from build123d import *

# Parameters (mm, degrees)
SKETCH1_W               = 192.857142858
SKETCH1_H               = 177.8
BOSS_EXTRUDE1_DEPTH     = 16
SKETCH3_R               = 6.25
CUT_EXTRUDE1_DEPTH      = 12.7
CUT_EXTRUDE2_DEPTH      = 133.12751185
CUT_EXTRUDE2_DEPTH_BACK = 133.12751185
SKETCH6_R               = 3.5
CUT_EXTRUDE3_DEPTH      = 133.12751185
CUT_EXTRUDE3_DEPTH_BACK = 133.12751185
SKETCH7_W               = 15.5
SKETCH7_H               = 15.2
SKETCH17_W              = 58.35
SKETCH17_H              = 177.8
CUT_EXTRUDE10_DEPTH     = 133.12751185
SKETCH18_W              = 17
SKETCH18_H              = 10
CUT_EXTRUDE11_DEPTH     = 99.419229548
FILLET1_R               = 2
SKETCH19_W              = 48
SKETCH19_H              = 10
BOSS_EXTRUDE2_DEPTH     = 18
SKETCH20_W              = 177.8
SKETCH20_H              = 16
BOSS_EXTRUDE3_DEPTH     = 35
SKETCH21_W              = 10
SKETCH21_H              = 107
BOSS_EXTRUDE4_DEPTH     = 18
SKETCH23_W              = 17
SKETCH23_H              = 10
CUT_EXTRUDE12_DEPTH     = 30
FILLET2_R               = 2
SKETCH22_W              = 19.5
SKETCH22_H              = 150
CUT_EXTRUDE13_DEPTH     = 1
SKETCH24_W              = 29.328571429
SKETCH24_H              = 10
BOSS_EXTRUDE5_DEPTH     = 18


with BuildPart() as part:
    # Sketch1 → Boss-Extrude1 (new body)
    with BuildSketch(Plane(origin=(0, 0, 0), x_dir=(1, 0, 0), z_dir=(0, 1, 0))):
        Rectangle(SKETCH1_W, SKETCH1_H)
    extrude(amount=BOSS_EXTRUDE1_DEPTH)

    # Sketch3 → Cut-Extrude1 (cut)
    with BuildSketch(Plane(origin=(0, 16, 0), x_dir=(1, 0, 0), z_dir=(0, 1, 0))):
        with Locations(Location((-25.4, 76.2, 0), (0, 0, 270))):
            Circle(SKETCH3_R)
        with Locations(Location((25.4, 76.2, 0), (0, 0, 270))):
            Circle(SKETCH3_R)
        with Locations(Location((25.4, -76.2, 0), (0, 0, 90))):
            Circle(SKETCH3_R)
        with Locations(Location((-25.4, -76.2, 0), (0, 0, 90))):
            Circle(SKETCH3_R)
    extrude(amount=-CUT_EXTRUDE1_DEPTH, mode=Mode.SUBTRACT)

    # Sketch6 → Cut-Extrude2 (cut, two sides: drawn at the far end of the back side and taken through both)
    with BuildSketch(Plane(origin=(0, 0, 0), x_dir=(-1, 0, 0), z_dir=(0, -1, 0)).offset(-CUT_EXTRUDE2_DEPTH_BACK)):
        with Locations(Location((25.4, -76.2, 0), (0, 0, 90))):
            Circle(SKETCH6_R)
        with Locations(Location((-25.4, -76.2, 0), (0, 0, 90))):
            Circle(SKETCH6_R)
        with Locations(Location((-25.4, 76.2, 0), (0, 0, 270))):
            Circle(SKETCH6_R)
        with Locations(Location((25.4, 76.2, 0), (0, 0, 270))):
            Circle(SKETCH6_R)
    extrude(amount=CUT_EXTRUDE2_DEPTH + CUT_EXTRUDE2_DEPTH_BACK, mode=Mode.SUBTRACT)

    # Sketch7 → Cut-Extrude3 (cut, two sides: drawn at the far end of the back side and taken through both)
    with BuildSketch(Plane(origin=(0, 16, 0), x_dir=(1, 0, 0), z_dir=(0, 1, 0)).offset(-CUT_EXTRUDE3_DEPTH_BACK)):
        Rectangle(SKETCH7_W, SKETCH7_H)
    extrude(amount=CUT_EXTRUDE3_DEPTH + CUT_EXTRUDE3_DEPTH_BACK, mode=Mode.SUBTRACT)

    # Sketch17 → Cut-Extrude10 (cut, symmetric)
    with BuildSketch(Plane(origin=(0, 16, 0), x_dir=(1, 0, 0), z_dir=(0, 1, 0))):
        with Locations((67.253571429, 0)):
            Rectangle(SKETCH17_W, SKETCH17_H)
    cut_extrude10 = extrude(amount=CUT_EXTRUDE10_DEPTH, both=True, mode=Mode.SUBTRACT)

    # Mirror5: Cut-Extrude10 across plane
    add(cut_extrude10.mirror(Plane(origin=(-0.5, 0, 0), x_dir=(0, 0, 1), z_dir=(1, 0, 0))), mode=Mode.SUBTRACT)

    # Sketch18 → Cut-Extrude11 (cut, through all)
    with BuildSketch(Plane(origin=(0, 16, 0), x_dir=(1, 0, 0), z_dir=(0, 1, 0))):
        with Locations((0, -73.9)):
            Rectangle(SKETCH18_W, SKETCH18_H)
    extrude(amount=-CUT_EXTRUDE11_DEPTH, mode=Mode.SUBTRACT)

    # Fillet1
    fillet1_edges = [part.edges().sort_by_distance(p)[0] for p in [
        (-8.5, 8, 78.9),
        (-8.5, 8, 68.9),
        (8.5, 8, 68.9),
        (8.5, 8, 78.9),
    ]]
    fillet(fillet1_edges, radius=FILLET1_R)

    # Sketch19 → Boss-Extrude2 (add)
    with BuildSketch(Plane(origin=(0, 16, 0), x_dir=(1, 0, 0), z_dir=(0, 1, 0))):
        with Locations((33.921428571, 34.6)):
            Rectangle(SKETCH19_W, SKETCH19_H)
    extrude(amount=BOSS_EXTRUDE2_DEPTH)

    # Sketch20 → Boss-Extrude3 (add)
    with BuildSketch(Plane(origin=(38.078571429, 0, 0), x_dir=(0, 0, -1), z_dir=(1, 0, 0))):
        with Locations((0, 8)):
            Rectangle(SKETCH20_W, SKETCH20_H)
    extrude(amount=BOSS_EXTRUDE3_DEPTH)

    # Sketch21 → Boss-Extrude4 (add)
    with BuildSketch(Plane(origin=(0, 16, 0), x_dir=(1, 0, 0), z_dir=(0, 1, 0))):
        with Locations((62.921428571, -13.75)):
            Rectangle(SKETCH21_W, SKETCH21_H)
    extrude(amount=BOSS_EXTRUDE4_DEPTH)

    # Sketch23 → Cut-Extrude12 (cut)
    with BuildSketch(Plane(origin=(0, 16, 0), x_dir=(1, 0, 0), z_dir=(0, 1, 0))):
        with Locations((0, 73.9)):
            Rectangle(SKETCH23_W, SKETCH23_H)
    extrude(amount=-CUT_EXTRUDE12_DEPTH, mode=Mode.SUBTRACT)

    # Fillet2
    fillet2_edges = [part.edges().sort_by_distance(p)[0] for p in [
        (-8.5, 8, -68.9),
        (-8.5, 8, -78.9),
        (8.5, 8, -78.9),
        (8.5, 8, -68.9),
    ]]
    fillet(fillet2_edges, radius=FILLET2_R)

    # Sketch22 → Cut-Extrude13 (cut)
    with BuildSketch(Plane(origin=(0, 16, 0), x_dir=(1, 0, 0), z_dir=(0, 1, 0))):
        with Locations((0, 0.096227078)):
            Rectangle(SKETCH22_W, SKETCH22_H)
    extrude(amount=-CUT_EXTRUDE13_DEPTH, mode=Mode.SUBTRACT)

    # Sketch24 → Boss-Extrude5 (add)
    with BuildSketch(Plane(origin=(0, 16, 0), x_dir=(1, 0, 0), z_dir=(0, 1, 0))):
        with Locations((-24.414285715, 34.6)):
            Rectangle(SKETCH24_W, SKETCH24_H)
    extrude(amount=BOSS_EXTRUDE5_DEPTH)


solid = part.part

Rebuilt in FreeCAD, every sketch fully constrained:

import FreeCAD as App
import Part
import Sketcher
from FreeCAD import Vector
Q = App.Units.Quantity


def edges_at(feature, points):
    """Names of the edges that pass closest to the given points."""
    edges = feature.Shape.Edges
    near = lambda p: min(range(len(edges)), key=lambda i: edges[i].distToShape(Part.Vertex(*p))[0])
    return sorted({f"Edge{near(p) + 1}" for p in points})


def add_polygon(sketch, points):
    """Adds a closed chain of lines whose ends are joined by coincident constraints."""
    first, n = sketch.GeometryCount, len(points)
    for a, b in zip(points, points[1:] + points[:1]):
        sketch.addGeometry(Part.LineSegment(App.Vector(*a, 0), App.Vector(*b, 0)), False)
    for i in range(n):
        sketch.addConstraint(Sketcher.Constraint("Coincident", first + i, 2, first + (i + 1) % n, 1))

doc = App.newDocument("Part")
body = doc.addObject("PartDesign::Body", "Body")

# Sketch on XZ plane
sketch1 = body.newObject("Sketcher::SketchObject", "Sketch")
sketch1.AttachmentSupport = (doc.getObject("XZ_Plane"), [""])
sketch1.MapMode = "FlatFace"
add_polygon(sketch1, [(-96.428571, -88.9), (-96.428571, 88.9), (96.428571, 88.9), (96.428571, -88.9)])  # lines 0-3
sketch1.addConstraint(Sketcher.Constraint("Vertical", 0))
sketch1.addConstraint(Sketcher.Constraint("Horizontal", 1))
sketch1.addConstraint(Sketcher.Constraint("Vertical", 2))
sketch1.addConstraint(Sketcher.Constraint("Horizontal", 3))
sketch1.addConstraint(Sketcher.Constraint("Symmetric", 0, 2, 2, 2, -1, 1))
sketch1.addConstraint(Sketcher.Constraint("DistanceY", 0, 1, 0, 2, Q("177.8 mm")))
sketch1.addConstraint(Sketcher.Constraint("DistanceX", 1, 1, 1, 2, Q("192.857143 mm")))
pad1 = body.newObject("PartDesign::Pad", "Pad")
pad1.Profile = sketch1
pad1.Length = 16
pad1.Reversed = True

# Sketch on XZ plane
sketch2 = body.newObject("Sketcher::SketchObject", "Sketch001")
sketch2.AttachmentSupport = (doc.getObject("XZ_Plane"), [""])
sketch2.MapMode = "FlatFace"
sketch2.AttachmentOffset = App.Placement(Vector(0, 0, -16), App.Rotation())
sketch2.addGeometry(Part.Circle(Vector(-25.4, -76.2, 0), Vector(0, 0, 1), 6.25), False)
sketch2.addGeometry(Part.Circle(Vector(25.4, -76.2, 0), Vector(0, 0, 1), 6.25), False)
sketch2.addGeometry(Part.Circle(Vector(25.4, 76.2, 0), Vector(0, 0, 1), 6.25), False)
sketch2.addGeometry(Part.Circle(Vector(-25.4, 76.2, 0), Vector(0, 0, 1), 6.25), False)
sketch2.addConstraint(Sketcher.Constraint("Equal", 0, 1))
sketch2.addConstraint(Sketcher.Constraint("Equal", 1, 2))
sketch2.addConstraint(Sketcher.Constraint("Equal", 2, 3))
sketch2.addConstraint(Sketcher.Constraint("Symmetric", 0, 3, 2, 3, -1, 1))
sketch2.addConstraint(Sketcher.Constraint("Symmetric", 1, 3, 3, 3, -1, 1))
sketch2.addConstraint(Sketcher.Constraint("Symmetric", 0, 3, 1, 3, -2))
sketch2.addConstraint(Sketcher.Constraint("Diameter", 0, Q("12.5 mm")))
sketch2.addConstraint(Sketcher.Constraint("DistanceX", 0, 3, -1, 1, Q("25.4 mm")))
sketch2.addConstraint(Sketcher.Constraint("DistanceY", 0, 3, -1, 1, Q("76.2 mm")))
pocket1 = body.newObject("PartDesign::Pocket", "Pocket")
pocket1.Profile = sketch2
pocket1.Length = 12.7
pocket1.Reversed = True

# Sketch on XZ plane
sketch3 = body.newObject("Sketcher::SketchObject", "Sketch002")
sketch3.AttachmentSupport = (doc.getObject("XZ_Plane"), [""])
sketch3.MapMode = "FlatFace"
sketch3.addGeometry(Part.Circle(Vector(-25.4, 76.2, 0), Vector(0, 0, 1), 3.5), False)
sketch3.addGeometry(Part.Circle(Vector(25.4, 76.2, 0), Vector(0, 0, 1), 3.5), False)
sketch3.addGeometry(Part.Circle(Vector(25.4, -76.2, 0), Vector(0, 0, 1), 3.5), False)
sketch3.addGeometry(Part.Circle(Vector(-25.4, -76.2, 0), Vector(0, 0, 1), 3.5), False)
sketch3.addConstraint(Sketcher.Constraint("Equal", 0, 1))
sketch3.addConstraint(Sketcher.Constraint("Equal", 1, 2))
sketch3.addConstraint(Sketcher.Constraint("Equal", 2, 3))
sketch3.addConstraint(Sketcher.Constraint("Symmetric", 0, 3, 2, 3, -1, 1))
sketch3.addConstraint(Sketcher.Constraint("Symmetric", 1, 3, 3, 3, -1, 1))
sketch3.addConstraint(Sketcher.Constraint("Symmetric", 0, 3, 1, 3, -2))
sketch3.addConstraint(Sketcher.Constraint("Diameter", 0, Q("7 mm")))
sketch3.addConstraint(Sketcher.Constraint("DistanceX", 0, 3, -1, 1, Q("25.4 mm")))
sketch3.addConstraint(Sketcher.Constraint("DistanceY", -1, 1, 0, 3, Q("76.2 mm")))
pocket2 = body.newObject("PartDesign::Pocket", "Pocket001")
pocket2.Profile = sketch3
pocket2.Type = "ThroughAll"
pocket2.Midplane = True

# Sketch on XZ plane
sketch4 = body.newObject("Sketcher::SketchObject", "Sketch003")
sketch4.AttachmentSupport = (doc.getObject("XZ_Plane"), [""])
sketch4.MapMode = "FlatFace"
sketch4.AttachmentOffset = App.Placement(Vector(0, 0, -16), App.Rotation())
add_polygon(sketch4, [(-7.75, -7.6), (-7.75, 7.6), (7.75, 7.6), (7.75, -7.6)])  # lines 0-3
sketch4.addConstraint(Sketcher.Constraint("Vertical", 0))
sketch4.addConstraint(Sketcher.Constraint("Horizontal", 1))
sketch4.addConstraint(Sketcher.Constraint("Vertical", 2))
sketch4.addConstraint(Sketcher.Constraint("Horizontal", 3))
sketch4.addConstraint(Sketcher.Constraint("Symmetric", 0, 2, 2, 2, -1, 1))
sketch4.addConstraint(Sketcher.Constraint("DistanceX", 1, 1, 1, 2, Q("15.5 mm")))
sketch4.addConstraint(Sketcher.Constraint("DistanceY", 0, 1, 0, 2, Q("15.2 mm")))
pocket3 = body.newObject("PartDesign::Pocket", "Pocket002")
pocket3.Profile = sketch4
pocket3.Type = "ThroughAll"
pocket3.Midplane = True

# Sketch on XZ plane
sketch5 = body.newObject("Sketcher::SketchObject", "Sketch004")
sketch5.AttachmentSupport = (doc.getObject("XZ_Plane"), [""])
sketch5.MapMode = "FlatFace"
sketch5.AttachmentOffset = App.Placement(Vector(0, 0, -16), App.Rotation())
add_polygon(sketch5, [(38.078571, -88.9), (38.078571, 88.9), (96.428571, 88.9), (96.428571, -88.9)])  # lines 0-3
sketch5.addConstraint(Sketcher.Constraint("Vertical", 0))
sketch5.addConstraint(Sketcher.Constraint("Horizontal", 1))
sketch5.addConstraint(Sketcher.Constraint("Vertical", 2))
sketch5.addConstraint(Sketcher.Constraint("Horizontal", 3))
sketch5.addConstraint(Sketcher.Constraint("DistanceY", 0, 1, 0, 2, Q("177.8 mm")))
sketch5.addConstraint(Sketcher.Constraint("DistanceX", 1, 1, 1, 2, Q("58.35 mm")))
sketch5.addConstraint(Sketcher.Constraint("DistanceY", -1, 1, 0, 2, Q("88.9 mm")))
sketch5.addConstraint(Sketcher.Constraint("DistanceX", -1, 1, 0, 2, Q("38.078571 mm")))
pocket4 = body.newObject("PartDesign::Pocket", "Pocket003")
pocket4.Profile = sketch5
pocket4.Length = 266.255024
pocket4.Midplane = True
doc.recompute()

datumplane = body.newObject("PartDesign::Plane", "DatumPlane")
datumplane.AttachmentSupport = (doc.getObject("YZ_Plane"), [""])
datumplane.MapMode = "FlatFace"
datumplane.AttachmentOffset = App.Placement(Vector(0, 0, -0.5), App.Rotation())
mirrored = body.newObject("PartDesign::Mirrored", "Mirrored")
mirrored.Originals = [pocket4]
mirrored.MirrorPlane = (datumplane, [""])
body.Tip = mirrored

# Sketch on XZ plane
sketch6 = body.newObject("Sketcher::SketchObject", "Sketch005")
sketch6.AttachmentSupport = (doc.getObject("XZ_Plane"), [""])
sketch6.MapMode = "FlatFace"
sketch6.AttachmentOffset = App.Placement(Vector(0, 0, -16), App.Rotation())
add_polygon(sketch6, [(-8.5, 68.9), (-8.5, 78.9), (8.5, 78.9), (8.5, 68.9)])  # lines 0-3
sketch6.addConstraint(Sketcher.Constraint("Vertical", 0))
sketch6.addConstraint(Sketcher.Constraint("Horizontal", 1))
sketch6.addConstraint(Sketcher.Constraint("Vertical", 2))
sketch6.addConstraint(Sketcher.Constraint("Horizontal", 3))
sketch6.addConstraint(Sketcher.Constraint("DistanceX", 1, 1, 1, 2, Q("17 mm")))
sketch6.addConstraint(Sketcher.Constraint("DistanceY", 0, 1, 0, 2, Q("10 mm")))
sketch6.addConstraint(Sketcher.Constraint("DistanceX", 0, 2, -1, 1, Q("8.5 mm")))
sketch6.addConstraint(Sketcher.Constraint("DistanceY", -1, 1, 0, 2, Q("78.9 mm")))
pocket5 = body.newObject("PartDesign::Pocket", "Pocket004")
pocket5.Profile = sketch6
pocket5.Type = "ThroughAll"
pocket5.Reversed = True
doc.recompute()

fillet = body.newObject("PartDesign::Fillet", "Fillet")
fillet.Base = (pocket5, edges_at(pocket5, [
    (-8.5, 8, 78.9),
    (-8.5, 8, 68.9),
    (8.5, 8, 68.9),
    (8.5, 8, 78.9),
]))
fillet.Radius = 2

# Sketch on XZ plane
sketch7 = body.newObject("Sketcher::SketchObject", "Sketch006")
sketch7.AttachmentSupport = (doc.getObject("XZ_Plane"), [""])
sketch7.MapMode = "FlatFace"
sketch7.AttachmentOffset = App.Placement(Vector(0, 0, -16), App.Rotation())
add_polygon(sketch7, [(9.921429, -39.6), (9.921429, -29.6), (57.921429, -29.6), (57.921429, -39.6)])  # lines 0-3
sketch7.addConstraint(Sketcher.Constraint("Vertical", 0))
sketch7.addConstraint(Sketcher.Constraint("Horizontal", 1))
sketch7.addConstraint(Sketcher.Constraint("Vertical", 2))
sketch7.addConstraint(Sketcher.Constraint("Horizontal", 3))
sketch7.addConstraint(Sketcher.Constraint("DistanceX", 1, 1, 1, 2, Q("48 mm")))
sketch7.addConstraint(Sketcher.Constraint("DistanceY", 0, 1, 0, 2, Q("10 mm")))
sketch7.addConstraint(Sketcher.Constraint("DistanceY", 0, 2, -1, 1, Q("29.6 mm")))
sketch7.addConstraint(Sketcher.Constraint("DistanceX", -1, 1, 0, 2, Q("9.921429 mm")))
pad2 = body.newObject("PartDesign::Pad", "Pad001")
pad2.Profile = sketch7
pad2.Length = 18
pad2.Reversed = True

# Sketch on YZ plane
sketch8 = body.newObject("Sketcher::SketchObject", "Sketch007")
sketch8.AttachmentSupport = (doc.getObject("YZ_Plane"), [""])
sketch8.MapMode = "FlatFace"
sketch8.AttachmentOffset = App.Placement(Vector(0, 0, 38.078571), App.Rotation())
add_polygon(sketch8, [(16, 88.9), (0, 88.9), (0, -88.9), (16, -88.9)])  # lines 0-3
sketch8.addConstraint(Sketcher.Constraint("Horizontal", 0))
sketch8.addConstraint(Sketcher.Constraint("Vertical", 1))
sketch8.addConstraint(Sketcher.Constraint("Horizontal", 2))
sketch8.addConstraint(Sketcher.Constraint("Vertical", 3))
sketch8.addConstraint(Sketcher.Constraint("Symmetric", 0, 2, 1, 2, -1, 1))
sketch8.addConstraint(Sketcher.Constraint("DistanceX", 0, 2, 0, 1, Q("16 mm")))
sketch8.addConstraint(Sketcher.Constraint("DistanceY", 1, 2, 1, 1, Q("177.8 mm")))
pad3 = body.newObject("PartDesign::Pad", "Pad002")
pad3.Profile = sketch8
pad3.Length = 35

# Sketch on XZ plane
sketch9 = body.newObject("Sketcher::SketchObject", "Sketch008")
sketch9.AttachmentSupport = (doc.getObject("XZ_Plane"), [""])
sketch9.MapMode = "FlatFace"
sketch9.AttachmentOffset = App.Placement(Vector(0, 0, -16), App.Rotation())
add_polygon(sketch9, [(57.921429, -39.75), (57.921429, 67.25), (67.921429, 67.25), (67.921429, -39.75)])  # lines 0-3
sketch9.addConstraint(Sketcher.Constraint("Vertical", 0))
sketch9.addConstraint(Sketcher.Constraint("Horizontal", 1))
sketch9.addConstraint(Sketcher.Constraint("Vertical", 2))
sketch9.addConstraint(Sketcher.Constraint("Horizontal", 3))
sketch9.addConstraint(Sketcher.Constraint("DistanceX", 1, 1, 1, 2, Q("10 mm")))
sketch9.addConstraint(Sketcher.Constraint("DistanceY", 0, 1, 0, 2, Q("107 mm")))
sketch9.addConstraint(Sketcher.Constraint("DistanceY", -1, 1, 0, 2, Q("67.25 mm")))
sketch9.addConstraint(Sketcher.Constraint("DistanceX", -1, 1, 0, 2, Q("57.921429 mm")))
pad4 = body.newObject("PartDesign::Pad", "Pad003")
pad4.Profile = sketch9
pad4.Length = 18
pad4.Reversed = True

# Sketch on XZ plane
sketch10 = body.newObject("Sketcher::SketchObject", "Sketch009")
sketch10.AttachmentSupport = (doc.getObject("XZ_Plane"), [""])
sketch10.MapMode = "FlatFace"
sketch10.AttachmentOffset = App.Placement(Vector(0, 0, -16), App.Rotation())
add_polygon(sketch10, [(-8.5, -78.9), (-8.5, -68.9), (8.5, -68.9), (8.5, -78.9)])  # lines 0-3
sketch10.addConstraint(Sketcher.Constraint("Vertical", 0))
sketch10.addConstraint(Sketcher.Constraint("Horizontal", 1))
sketch10.addConstraint(Sketcher.Constraint("Vertical", 2))
sketch10.addConstraint(Sketcher.Constraint("Horizontal", 3))
sketch10.addConstraint(Sketcher.Constraint("DistanceX", 1, 1, 1, 2, Q("17 mm")))
sketch10.addConstraint(Sketcher.Constraint("DistanceY", 0, 1, 0, 2, Q("10 mm")))
sketch10.addConstraint(Sketcher.Constraint("DistanceX", 0, 2, -1, 1, Q("8.5 mm")))
sketch10.addConstraint(Sketcher.Constraint("DistanceY", 0, 2, -1, 1, Q("68.9 mm")))
pocket6 = body.newObject("PartDesign::Pocket", "Pocket005")
pocket6.Profile = sketch10
pocket6.Length = 30
pocket6.Reversed = True
doc.recompute()

fillet2 = body.newObject("PartDesign::Fillet", "Fillet001")
fillet2.Base = (pocket6, edges_at(pocket6, [
    (-8.5, 8, -68.9),
    (-8.5, 8, -78.9),
    (8.5, 8, -78.9),
    (8.5, 8, -68.9),
]))
fillet2.Radius = 2

# Sketch on XZ plane
sketch11 = body.newObject("Sketcher::SketchObject", "Sketch010")
sketch11.AttachmentSupport = (doc.getObject("XZ_Plane"), [""])
sketch11.MapMode = "FlatFace"
sketch11.AttachmentOffset = App.Placement(Vector(0, 0, -16), App.Rotation())
add_polygon(sketch11, [(-9.75, -75.096227), (-9.75, 74.903773), (9.75, 74.903773), (9.75, -75.096227)])  # lines 0-3
sketch11.addConstraint(Sketcher.Constraint("Vertical", 0))
sketch11.addConstraint(Sketcher.Constraint("Horizontal", 1))
sketch11.addConstraint(Sketcher.Constraint("Vertical", 2))
sketch11.addConstraint(Sketcher.Constraint("Horizontal", 3))
sketch11.addConstraint(Sketcher.Constraint("DistanceY", 0, 1, 0, 2, Q("150 mm")))
sketch11.addConstraint(Sketcher.Constraint("DistanceX", 1, 1, 1, 2, Q("19.5 mm")))
sketch11.addConstraint(Sketcher.Constraint("DistanceX", 0, 2, -1, 1, Q("9.75 mm")))
sketch11.addConstraint(Sketcher.Constraint("DistanceY", -1, 1, 0, 2, Q("74.903773 mm")))
pocket7 = body.newObject("PartDesign::Pocket", "Pocket006")
pocket7.Profile = sketch11
pocket7.Length = 1
pocket7.Reversed = True

# Sketch on XZ plane
sketch12 = body.newObject("Sketcher::SketchObject", "Sketch011")
sketch12.AttachmentSupport = (doc.getObject("XZ_Plane"), [""])
sketch12.MapMode = "FlatFace"
sketch12.AttachmentOffset = App.Placement(Vector(0, 0, -16), App.Rotation())
add_polygon(sketch12, [(-39.078571, -39.6), (-39.078571, -29.6), (-9.75, -29.6), (-9.75, -39.6)])  # lines 0-3
sketch12.addConstraint(Sketcher.Constraint("Vertical", 0))
sketch12.addConstraint(Sketcher.Constraint("Horizontal", 1))
sketch12.addConstraint(Sketcher.Constraint("Vertical", 2))
sketch12.addConstraint(Sketcher.Constraint("Horizontal", 3))
sketch12.addConstraint(Sketcher.Constraint("DistanceY", 0, 1, 0, 2, Q("10 mm")))
sketch12.addConstraint(Sketcher.Constraint("DistanceY", 0, 2, -1, 1, Q("29.6 mm")))
sketch12.addConstraint(Sketcher.Constraint("DistanceX", 1, 2, -1, 1, Q("9.75 mm")))
sketch12.addConstraint(Sketcher.Constraint("DistanceX", 1, 1, 1, 2, Q("29.328571 mm")))
pad5 = body.newObject("PartDesign::Pad", "Pad004")
pad5.Profile = sketch12
pad5.Length = 18
pad5.Reversed = True

doc.recompute()
